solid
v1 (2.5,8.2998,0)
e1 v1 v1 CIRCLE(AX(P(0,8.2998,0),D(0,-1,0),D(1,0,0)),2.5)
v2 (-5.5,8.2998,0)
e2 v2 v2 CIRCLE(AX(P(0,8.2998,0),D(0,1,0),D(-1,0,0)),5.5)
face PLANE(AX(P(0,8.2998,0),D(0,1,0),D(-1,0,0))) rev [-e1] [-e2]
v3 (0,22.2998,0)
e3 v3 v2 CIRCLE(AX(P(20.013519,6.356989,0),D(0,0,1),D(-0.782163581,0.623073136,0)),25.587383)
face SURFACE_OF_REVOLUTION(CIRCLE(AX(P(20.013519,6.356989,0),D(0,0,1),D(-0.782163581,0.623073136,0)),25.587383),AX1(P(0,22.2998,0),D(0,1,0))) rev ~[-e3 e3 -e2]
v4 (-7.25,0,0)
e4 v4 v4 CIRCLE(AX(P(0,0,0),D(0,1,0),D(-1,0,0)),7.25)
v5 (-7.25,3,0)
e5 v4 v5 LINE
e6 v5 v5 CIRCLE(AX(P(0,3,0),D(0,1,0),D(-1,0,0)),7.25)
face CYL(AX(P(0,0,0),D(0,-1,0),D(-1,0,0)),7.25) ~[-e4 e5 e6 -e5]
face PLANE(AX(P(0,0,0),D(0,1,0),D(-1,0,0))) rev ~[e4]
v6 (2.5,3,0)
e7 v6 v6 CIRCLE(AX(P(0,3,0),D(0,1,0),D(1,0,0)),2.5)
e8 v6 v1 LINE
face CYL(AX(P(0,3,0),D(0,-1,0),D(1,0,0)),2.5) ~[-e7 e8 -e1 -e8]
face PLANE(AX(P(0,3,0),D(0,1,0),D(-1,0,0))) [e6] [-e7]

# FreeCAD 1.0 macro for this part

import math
import FreeCAD as App
import Part
import Sketcher
Q = App.Units.Quantity

doc = App.newDocument("Part")
params = doc.addObject("Spreadsheet::Sheet", "Params")
for row, (alias, value) in enumerate([
    ("sketch1_diameter", "14.5 mm"),
    ("pad1_length", "3 mm"),
    ("sketch2_diameter", "5 mm"),
    ("pad2_length", "14.7 mm"),
    ("sketch3_height", "14 mm"),
    ("sketch3_width", "5.5 mm"),
    ("revolution_angle", "360 deg"),
], start=1):
    params.set(f"A{row}", alias)
    params.set(f"B{row}", "=" + value)
    params.setAlias(f"B{row}", alias)

body = doc.addObject("PartDesign::Body", "Body")

sketch1 = body.newObject("Sketcher::SketchObject", "Sketch")
sketch1.AttachmentSupport = (doc.getObject("XZ_Plane"), [""])
sketch1.MapMode = "FlatFace"
sketch1.addGeometry(Part.Circle(App.Vector(0, 0, 0), App.Vector(0, 0, 1), 7), False)
sketch1.addConstraint([
    Sketcher.Constraint("Coincident", 0, 3, -1, 1),
    Sketcher.Constraint("Diameter", 0, Q("14.5 mm")),
])
sketch1.setExpression("Constraints[1]", "Params.sketch1_diameter")
pad1 = body.newObject("PartDesign::Pad", "Pad")
pad1.Profile = sketch1
pad1.setExpression("Length", "Params.pad1_length")
pad1.Reversed = True

sketch2 = body.newObject("Sketcher::SketchObject", "Sketch001")
sketch2.AttachmentSupport = (doc.getObject("XZ_Plane"), [""])
sketch2.MapMode = "FlatFace"
sketch2.AttachmentOffset = App.Placement(App.Vector(0, 0, -3), App.Rotation())
sketch2.addGeometry(Part.Circle(App.Vector(0, 0, 0), App.Vector(0, 0, 1), 2.5), False)
sketch2.addConstraint([
    Sketcher.Constraint("Coincident", 0, 3, -1, 1),
    Sketcher.Constraint("Diameter", 0, Q("5 mm")),
])
sketch2.setExpression("Constraints[1]", "Params.sketch2_diameter")
pad2 = body.newObject("PartDesign::Pad", "Pad001")
pad2.Profile = sketch2
pad2.setExpression("Length", "Params.pad2_length")
pad2.Reversed = True

sketch3 = body.newObject("Sketcher::SketchObject", "Sketch002")
sketch3.AttachmentSupport = (doc.getObject("XY_Plane"), [""])
sketch3.MapMode = "FlatFace"
sketch3.addGeometry([
    Part.LineSegment(App.Vector(-6, 8, 0), App.Vector(0, 8, 0)),
    Part.LineSegment(App.Vector(0, 8, 0), App.Vector(0, 22, 0)),
    Part.ArcOfCircle(Part.Circle(App.Vector(20, 6, 0), App.Vector(0, 0, 1), 26), math.radians(141), math.radians(176)),
], False)
sketch3.addConstraint([
    Sketcher.Constraint("Coincident", 0, 2, 1, 1),
    Sketcher.Constraint("Coincident", 1, 2, 2, 1),
    Sketcher.Constraint("Coincident", 2, 2, 0, 1),
    Sketcher.Constraint("Horizontal", 0),
    Sketcher.Constraint("Vertical", 1),
    Sketcher.Constraint("PointOnObject", 0, 2, -2),
    Sketcher.Constraint("DistanceY", 1, 1, 1, 2, Q("14 mm")),
    Sketcher.Constraint("DistanceX", 0, 1, 0, 2, Q("5.5 mm")),
    Sketcher.Constraint("Radius", 2, Q("25.5874 mm")),
    Sketcher.Constraint("DistanceY", -1, 1, 2, 3, Q("6.357 mm")),
])
sketch3.setExpression("Constraints[6]", "Params.sketch3_height")
sketch3.setExpression("Constraints[7]", "Params.sketch3_width")
revolution = body.newObject("PartDesign::Revolution", "Revolution")
revolution.Profile = sketch3
revolution.ReferenceAxis = (sketch3, ["V_Axis"])
revolution.setExpression("Angle", "Params.revolution_angle")

doc.recompute()
